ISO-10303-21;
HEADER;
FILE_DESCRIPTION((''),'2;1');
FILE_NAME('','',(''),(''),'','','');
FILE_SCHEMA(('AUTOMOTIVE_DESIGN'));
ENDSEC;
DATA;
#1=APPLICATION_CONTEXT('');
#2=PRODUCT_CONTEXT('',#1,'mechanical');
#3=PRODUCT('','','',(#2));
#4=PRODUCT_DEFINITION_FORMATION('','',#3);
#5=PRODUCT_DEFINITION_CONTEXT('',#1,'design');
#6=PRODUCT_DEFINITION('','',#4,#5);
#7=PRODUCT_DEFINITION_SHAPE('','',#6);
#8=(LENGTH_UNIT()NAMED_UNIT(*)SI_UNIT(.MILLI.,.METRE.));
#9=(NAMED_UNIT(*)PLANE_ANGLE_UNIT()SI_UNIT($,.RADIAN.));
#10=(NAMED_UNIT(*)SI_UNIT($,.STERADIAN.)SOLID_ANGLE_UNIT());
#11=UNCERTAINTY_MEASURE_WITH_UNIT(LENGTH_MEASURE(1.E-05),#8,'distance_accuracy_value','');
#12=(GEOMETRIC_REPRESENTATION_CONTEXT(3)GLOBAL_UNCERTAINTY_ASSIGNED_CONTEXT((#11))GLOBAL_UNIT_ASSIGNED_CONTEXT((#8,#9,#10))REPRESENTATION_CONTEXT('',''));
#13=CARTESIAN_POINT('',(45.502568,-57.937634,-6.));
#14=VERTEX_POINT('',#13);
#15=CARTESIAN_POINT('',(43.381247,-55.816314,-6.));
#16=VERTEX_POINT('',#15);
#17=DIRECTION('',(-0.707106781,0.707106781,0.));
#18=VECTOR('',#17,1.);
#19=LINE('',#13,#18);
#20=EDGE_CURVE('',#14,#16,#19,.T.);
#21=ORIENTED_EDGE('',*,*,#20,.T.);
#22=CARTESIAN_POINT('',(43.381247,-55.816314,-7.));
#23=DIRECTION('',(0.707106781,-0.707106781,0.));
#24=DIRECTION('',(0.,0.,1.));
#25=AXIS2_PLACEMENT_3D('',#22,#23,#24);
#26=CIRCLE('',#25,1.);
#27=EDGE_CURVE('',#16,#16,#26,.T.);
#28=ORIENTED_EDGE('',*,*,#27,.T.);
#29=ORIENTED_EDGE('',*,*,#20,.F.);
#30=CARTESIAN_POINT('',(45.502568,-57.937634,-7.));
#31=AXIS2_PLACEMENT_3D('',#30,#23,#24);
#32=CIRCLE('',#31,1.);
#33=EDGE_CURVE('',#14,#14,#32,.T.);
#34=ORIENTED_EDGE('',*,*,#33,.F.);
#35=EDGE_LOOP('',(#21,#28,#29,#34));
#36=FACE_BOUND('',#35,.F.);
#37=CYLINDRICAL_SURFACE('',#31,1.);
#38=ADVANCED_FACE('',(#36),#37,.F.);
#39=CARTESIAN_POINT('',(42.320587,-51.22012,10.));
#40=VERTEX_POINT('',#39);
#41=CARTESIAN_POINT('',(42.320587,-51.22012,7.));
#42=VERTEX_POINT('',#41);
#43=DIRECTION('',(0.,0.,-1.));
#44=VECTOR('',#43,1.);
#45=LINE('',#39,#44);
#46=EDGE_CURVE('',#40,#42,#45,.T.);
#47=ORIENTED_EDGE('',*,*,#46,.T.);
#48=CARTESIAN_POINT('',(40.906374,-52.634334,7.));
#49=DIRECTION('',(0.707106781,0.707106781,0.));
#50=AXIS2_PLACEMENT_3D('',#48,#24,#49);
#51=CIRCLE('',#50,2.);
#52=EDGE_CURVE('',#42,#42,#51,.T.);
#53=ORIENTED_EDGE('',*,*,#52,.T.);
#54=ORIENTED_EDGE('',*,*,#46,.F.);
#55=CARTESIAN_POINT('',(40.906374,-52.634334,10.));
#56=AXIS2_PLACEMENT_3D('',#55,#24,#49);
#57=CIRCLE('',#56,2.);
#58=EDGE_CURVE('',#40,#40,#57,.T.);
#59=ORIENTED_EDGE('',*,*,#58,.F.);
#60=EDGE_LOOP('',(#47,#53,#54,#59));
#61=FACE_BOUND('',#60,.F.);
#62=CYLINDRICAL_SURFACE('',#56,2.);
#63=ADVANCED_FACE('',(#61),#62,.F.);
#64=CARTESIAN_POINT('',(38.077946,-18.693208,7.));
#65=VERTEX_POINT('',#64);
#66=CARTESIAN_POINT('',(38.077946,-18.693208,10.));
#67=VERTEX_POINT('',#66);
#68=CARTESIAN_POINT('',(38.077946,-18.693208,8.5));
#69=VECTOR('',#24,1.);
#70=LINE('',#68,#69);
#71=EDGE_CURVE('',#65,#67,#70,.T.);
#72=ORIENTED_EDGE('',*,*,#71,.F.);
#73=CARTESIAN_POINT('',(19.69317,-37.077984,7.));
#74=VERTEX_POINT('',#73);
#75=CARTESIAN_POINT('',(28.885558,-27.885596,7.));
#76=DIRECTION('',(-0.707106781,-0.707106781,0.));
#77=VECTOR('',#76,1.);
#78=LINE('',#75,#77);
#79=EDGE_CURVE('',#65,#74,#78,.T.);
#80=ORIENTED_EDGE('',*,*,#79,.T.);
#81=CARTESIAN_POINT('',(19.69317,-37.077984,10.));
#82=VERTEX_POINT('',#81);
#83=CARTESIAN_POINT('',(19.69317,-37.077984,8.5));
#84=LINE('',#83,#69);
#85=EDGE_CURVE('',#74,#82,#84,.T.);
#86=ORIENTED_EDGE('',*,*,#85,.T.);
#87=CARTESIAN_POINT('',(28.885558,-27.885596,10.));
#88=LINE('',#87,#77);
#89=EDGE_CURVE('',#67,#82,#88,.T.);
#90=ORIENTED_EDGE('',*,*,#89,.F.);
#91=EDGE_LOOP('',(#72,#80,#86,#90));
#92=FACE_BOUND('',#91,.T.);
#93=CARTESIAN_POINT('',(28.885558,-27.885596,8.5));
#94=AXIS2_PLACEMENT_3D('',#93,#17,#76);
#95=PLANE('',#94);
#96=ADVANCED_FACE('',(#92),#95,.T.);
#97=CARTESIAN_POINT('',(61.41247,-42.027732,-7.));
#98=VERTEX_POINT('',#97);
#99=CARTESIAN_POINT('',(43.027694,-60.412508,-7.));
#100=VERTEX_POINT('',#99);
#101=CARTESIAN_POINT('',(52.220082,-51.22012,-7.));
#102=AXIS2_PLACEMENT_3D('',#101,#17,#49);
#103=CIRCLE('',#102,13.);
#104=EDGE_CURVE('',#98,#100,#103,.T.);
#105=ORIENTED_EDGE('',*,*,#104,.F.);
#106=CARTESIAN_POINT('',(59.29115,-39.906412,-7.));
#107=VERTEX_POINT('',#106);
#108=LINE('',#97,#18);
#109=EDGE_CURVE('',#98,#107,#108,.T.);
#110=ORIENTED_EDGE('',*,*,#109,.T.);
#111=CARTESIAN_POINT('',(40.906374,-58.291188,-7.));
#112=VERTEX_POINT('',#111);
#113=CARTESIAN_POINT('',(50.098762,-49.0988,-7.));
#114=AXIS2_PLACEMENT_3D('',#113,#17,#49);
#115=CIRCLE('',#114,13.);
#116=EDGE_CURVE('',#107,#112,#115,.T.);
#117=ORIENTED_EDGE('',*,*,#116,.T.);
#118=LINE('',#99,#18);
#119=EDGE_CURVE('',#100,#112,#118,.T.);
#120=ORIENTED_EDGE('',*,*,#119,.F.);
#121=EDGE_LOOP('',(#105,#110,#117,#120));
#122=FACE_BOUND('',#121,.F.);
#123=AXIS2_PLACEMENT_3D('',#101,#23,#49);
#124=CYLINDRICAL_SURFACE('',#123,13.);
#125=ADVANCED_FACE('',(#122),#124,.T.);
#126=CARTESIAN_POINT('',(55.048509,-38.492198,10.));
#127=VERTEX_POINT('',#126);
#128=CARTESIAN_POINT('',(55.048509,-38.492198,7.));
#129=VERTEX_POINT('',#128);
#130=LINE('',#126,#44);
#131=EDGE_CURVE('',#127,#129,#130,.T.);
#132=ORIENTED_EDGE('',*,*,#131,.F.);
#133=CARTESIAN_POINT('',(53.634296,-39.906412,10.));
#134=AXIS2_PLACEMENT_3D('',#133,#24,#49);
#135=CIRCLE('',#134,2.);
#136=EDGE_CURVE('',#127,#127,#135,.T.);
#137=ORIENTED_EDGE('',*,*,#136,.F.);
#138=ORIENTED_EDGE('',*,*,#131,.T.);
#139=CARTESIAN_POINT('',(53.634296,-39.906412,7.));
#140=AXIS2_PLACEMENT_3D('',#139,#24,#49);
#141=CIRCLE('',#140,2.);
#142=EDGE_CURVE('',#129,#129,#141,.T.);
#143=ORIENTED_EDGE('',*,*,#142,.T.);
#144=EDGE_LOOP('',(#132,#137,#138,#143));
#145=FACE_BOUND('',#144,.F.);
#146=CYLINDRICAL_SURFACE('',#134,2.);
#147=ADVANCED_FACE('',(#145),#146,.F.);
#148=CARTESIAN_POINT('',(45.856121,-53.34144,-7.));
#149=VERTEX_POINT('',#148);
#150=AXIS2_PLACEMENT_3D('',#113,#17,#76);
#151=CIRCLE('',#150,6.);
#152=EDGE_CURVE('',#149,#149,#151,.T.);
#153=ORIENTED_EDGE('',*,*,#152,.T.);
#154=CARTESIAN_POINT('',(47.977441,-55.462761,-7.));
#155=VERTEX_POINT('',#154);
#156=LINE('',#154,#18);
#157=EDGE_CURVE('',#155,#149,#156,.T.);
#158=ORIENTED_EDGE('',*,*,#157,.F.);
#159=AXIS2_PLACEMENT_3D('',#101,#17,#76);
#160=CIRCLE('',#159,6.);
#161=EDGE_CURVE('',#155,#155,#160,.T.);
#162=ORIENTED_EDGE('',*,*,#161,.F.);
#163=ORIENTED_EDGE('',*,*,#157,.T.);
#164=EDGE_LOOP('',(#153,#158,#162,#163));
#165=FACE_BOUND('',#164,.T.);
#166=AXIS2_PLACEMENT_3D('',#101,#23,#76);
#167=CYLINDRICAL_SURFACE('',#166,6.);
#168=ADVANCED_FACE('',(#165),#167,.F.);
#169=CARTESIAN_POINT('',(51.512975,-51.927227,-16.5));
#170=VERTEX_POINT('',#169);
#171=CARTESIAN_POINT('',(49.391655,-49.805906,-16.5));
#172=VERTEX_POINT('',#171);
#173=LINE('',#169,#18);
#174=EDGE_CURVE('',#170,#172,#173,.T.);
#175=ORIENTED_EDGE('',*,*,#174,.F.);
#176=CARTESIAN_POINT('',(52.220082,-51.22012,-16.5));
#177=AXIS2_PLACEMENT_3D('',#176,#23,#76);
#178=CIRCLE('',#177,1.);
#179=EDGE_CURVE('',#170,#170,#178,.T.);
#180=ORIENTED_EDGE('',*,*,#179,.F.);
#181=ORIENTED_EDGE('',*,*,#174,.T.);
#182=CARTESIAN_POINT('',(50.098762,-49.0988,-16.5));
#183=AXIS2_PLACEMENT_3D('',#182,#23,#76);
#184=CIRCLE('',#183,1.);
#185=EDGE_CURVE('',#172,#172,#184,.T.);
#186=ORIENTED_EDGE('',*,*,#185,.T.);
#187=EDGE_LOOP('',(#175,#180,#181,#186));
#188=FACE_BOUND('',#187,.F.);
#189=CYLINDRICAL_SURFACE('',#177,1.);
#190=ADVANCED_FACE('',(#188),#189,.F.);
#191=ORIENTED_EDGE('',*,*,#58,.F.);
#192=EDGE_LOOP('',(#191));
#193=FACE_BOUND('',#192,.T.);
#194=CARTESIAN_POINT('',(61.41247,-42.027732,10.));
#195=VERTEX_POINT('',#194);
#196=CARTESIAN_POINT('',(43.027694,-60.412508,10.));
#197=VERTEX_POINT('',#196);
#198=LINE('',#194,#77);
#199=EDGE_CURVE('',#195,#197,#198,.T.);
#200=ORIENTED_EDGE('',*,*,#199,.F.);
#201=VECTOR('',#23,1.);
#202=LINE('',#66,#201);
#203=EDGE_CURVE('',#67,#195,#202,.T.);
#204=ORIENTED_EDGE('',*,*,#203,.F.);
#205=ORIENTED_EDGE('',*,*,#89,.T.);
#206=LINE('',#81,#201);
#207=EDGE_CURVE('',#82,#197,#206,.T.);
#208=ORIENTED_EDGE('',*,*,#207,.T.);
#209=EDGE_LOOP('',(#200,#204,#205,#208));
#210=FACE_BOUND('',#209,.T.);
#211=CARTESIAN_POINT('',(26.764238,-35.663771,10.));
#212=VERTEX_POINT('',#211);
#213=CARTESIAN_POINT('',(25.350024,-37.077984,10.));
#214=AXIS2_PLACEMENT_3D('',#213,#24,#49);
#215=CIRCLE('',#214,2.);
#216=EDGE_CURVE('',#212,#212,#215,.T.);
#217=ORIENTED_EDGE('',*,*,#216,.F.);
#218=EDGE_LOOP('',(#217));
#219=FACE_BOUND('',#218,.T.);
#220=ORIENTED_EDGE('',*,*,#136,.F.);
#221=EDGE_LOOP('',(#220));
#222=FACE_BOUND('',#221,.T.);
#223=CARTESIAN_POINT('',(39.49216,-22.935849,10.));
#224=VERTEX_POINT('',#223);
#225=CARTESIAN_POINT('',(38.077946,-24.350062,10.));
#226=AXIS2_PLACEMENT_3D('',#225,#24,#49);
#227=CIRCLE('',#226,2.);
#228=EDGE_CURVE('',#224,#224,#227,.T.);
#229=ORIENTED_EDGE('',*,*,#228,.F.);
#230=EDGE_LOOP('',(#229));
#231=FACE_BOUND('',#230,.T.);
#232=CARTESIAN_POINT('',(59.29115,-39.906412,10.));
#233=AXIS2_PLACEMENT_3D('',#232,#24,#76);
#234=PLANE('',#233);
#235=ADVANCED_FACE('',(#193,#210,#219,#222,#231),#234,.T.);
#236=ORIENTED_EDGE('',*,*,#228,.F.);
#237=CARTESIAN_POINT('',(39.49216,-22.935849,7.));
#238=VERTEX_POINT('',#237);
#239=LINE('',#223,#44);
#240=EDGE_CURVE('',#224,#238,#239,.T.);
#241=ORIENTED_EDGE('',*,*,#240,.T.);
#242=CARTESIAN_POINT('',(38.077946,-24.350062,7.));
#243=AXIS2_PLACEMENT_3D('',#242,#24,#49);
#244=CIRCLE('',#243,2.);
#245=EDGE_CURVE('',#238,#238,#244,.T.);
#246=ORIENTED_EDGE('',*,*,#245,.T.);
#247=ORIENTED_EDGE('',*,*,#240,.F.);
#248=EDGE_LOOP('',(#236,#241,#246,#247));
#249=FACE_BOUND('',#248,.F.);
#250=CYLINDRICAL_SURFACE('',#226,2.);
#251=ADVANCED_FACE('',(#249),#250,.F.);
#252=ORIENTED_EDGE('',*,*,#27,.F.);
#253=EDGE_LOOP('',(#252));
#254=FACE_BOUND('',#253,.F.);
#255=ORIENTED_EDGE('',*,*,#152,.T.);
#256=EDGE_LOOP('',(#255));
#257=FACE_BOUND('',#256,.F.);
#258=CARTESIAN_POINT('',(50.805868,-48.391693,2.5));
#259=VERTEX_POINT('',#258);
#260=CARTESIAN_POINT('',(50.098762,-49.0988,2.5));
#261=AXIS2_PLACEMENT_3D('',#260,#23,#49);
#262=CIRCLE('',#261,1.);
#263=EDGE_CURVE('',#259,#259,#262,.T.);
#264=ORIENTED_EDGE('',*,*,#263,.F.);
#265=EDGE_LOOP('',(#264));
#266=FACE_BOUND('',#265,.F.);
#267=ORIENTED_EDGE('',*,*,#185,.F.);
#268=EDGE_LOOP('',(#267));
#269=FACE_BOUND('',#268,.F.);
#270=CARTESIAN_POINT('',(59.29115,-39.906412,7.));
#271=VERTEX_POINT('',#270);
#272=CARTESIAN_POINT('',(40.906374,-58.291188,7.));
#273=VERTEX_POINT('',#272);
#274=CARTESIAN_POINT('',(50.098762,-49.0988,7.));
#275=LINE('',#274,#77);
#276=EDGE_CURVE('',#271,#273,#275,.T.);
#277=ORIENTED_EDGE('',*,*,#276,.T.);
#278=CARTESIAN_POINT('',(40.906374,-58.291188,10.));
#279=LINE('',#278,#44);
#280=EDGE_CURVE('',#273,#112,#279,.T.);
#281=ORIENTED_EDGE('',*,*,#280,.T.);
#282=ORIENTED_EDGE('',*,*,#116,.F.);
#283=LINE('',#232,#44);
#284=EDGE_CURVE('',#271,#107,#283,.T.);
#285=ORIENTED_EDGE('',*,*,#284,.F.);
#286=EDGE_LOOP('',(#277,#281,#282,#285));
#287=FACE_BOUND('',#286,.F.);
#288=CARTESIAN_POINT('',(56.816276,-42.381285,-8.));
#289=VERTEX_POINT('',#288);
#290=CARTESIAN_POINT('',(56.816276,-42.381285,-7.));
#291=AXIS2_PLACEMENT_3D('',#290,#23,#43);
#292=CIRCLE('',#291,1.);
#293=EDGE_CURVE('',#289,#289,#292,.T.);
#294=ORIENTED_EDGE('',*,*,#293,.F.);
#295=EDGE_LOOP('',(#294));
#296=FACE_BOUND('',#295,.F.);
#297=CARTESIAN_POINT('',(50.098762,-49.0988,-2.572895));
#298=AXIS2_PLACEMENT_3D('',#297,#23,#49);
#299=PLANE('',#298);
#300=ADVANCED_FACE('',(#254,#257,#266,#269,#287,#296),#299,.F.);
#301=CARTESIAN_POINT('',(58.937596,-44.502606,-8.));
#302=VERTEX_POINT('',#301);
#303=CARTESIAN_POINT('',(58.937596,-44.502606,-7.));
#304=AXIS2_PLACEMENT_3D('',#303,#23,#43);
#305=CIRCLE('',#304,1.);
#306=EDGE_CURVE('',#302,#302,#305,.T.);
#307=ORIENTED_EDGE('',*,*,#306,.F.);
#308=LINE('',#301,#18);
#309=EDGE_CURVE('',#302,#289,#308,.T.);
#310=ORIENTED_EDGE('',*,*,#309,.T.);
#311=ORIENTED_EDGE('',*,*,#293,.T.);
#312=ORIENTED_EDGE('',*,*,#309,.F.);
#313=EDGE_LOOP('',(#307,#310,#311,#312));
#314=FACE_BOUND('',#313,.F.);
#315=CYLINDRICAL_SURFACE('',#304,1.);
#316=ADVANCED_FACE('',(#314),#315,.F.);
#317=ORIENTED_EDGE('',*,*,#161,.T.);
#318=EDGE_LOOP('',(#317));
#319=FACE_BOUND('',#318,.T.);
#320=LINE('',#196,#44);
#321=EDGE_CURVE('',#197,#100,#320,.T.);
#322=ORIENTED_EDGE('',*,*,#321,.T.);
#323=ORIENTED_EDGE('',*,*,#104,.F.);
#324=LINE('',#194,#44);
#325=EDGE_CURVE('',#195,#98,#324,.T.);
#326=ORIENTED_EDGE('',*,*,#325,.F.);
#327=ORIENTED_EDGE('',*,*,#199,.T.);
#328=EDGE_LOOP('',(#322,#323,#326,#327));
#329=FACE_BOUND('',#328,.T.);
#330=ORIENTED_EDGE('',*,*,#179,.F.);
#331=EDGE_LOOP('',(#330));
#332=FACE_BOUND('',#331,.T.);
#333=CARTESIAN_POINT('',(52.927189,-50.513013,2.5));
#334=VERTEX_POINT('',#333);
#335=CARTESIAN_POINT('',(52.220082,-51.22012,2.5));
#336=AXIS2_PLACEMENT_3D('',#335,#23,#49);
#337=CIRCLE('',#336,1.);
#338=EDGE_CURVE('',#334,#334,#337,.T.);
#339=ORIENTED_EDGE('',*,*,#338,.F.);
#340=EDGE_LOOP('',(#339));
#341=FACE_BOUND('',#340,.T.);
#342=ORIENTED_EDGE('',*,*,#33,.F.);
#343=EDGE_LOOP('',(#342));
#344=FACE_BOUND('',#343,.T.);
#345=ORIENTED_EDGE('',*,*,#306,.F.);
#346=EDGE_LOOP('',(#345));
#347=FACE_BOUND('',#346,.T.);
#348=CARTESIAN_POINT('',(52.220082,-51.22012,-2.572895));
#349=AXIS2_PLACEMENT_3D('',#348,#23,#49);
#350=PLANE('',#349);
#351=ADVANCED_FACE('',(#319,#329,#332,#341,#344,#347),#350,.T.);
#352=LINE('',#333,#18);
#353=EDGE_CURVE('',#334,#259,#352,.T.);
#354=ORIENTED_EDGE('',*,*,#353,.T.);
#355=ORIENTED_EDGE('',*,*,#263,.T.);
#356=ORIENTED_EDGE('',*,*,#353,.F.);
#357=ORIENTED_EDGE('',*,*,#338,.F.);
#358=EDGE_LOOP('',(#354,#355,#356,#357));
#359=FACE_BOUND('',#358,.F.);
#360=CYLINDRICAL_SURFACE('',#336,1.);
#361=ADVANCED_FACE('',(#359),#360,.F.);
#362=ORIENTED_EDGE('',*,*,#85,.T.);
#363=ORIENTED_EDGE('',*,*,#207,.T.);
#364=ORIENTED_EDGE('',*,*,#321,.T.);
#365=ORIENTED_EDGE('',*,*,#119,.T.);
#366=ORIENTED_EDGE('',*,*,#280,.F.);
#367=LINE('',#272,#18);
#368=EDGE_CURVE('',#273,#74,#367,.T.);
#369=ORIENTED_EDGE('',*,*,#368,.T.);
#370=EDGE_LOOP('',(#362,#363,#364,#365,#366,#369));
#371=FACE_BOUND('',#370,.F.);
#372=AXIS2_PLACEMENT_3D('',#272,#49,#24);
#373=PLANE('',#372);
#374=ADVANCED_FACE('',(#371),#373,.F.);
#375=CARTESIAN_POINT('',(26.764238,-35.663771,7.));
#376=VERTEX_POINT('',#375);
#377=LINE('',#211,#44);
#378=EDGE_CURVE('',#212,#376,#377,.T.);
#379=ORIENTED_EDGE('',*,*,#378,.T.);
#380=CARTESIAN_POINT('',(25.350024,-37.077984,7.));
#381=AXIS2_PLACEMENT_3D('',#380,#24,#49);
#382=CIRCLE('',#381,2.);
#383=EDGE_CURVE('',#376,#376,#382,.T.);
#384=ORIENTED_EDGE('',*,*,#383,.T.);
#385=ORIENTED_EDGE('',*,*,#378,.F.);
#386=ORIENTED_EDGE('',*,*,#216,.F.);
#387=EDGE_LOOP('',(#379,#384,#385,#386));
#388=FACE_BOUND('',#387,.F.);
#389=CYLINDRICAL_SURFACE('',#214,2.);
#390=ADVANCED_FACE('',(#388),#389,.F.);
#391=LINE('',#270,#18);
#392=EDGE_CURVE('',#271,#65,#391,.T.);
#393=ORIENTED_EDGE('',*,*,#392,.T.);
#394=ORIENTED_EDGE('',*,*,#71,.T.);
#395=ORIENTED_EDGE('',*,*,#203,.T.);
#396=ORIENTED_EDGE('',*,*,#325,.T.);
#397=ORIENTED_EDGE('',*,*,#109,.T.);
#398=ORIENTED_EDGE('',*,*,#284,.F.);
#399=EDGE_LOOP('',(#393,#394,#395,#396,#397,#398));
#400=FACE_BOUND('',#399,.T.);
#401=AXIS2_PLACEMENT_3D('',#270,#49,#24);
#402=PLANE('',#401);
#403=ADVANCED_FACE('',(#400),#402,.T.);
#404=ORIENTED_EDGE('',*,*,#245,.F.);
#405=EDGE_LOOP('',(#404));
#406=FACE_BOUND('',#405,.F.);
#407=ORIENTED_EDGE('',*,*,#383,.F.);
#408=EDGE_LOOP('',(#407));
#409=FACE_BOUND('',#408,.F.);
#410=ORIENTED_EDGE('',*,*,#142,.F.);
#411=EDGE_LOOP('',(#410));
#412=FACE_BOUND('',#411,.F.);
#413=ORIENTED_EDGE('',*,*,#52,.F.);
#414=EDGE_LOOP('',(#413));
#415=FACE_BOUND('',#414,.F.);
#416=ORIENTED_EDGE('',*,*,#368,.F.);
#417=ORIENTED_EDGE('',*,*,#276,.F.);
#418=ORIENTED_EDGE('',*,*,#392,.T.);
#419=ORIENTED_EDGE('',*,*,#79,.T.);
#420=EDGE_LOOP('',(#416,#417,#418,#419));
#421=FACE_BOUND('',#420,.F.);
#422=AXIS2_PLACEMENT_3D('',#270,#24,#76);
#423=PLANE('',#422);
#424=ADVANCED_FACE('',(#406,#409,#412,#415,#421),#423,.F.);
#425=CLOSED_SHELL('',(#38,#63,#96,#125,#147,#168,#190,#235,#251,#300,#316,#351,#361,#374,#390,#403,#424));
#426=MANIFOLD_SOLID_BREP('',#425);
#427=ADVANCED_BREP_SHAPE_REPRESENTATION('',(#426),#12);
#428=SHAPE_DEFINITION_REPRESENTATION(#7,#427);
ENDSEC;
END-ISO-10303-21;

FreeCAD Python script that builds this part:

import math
import FreeCAD as App
import Part
import Sketcher


def add_polygon(sketch, points):
    """Adds a closed chain of lines whose ends are joined by coincident constraints."""
    first, n = sketch.GeometryCount, len(points)
    for a, b in zip(points, points[1:] + points[:1]):
        sketch.addGeometry(Part.LineSegment(App.Vector(*a, 0), App.Vector(*b, 0)), False)
    for i in range(n):
        sketch.addConstraint(Sketcher.Constraint("Coincident", first + i, 2, first + (i + 1) % n, 1))

doc = App.newDocument("Part")
params = doc.addObject("Spreadsheet::Sheet", "Params")
for row, (alias, value) in enumerate([
    ("sketch1_diameter", "12 mm"),
    ("sketch1_radius", "13 mm"),
    ("sketch1_height", "17 mm"),
    ("pad1_length", "3 mm"),
    ("sketch2_width", "26 mm"),
    ("sketch2_height", "3 mm"),
    ("pad2_length", "30 mm"),
    ("sketch3_diameter", "4 mm"),
    ("sketch4_diameter", "2 mm"),
], start=1):
    params.set(f"A{row}", alias)
    params.set(f"B{row}", "=" + value)
    params.setAlias(f"B{row}", alias)

body = doc.addObject("PartDesign::Body", "Body")

sketch1 = doc.addObject("Sketcher::SketchObject", "Sketch")
body.addObject(sketch1)
sketch1.AttachmentSupport = (doc.XZ_Plane, [""])
sketch1.MapMode = "FlatFace"
sketch1.addGeometry([
    Part.LineSegment(App.Vector(13, 17, 0), App.Vector(-13, 17, 0)),
    Part.LineSegment(App.Vector(-13, 17, 0), App.Vector(-13, 0, 0)),
    Part.ArcOfCircle(Part.Circle(App.Vector(0, 0, 0), App.Vector(0, 0, 1), 13), math.radians(180), math.radians(360)),
    Part.LineSegment(App.Vector(13, 0, 0), App.Vector(13, 17, 0)),
    Part.Circle(App.Vector(0, 0, 0), App.Vector(0, 0, 1), 6),
], False)
sketch1.addConstraint([
    Sketcher.Constraint("Coincident", 0, 2, 1, 1),
    Sketcher.Constraint("Tangent", 1, 2, 2, 1),
    Sketcher.Constraint("Tangent", 2, 2, 3, 1),
    Sketcher.Constraint("Coincident", 3, 2, 0, 1),
    Sketcher.Constraint("Horizontal", 0),
    Sketcher.Constraint("Vertical", 1),
    Sketcher.Constraint("Vertical", 3),
    Sketcher.Constraint("Coincident", 2, 3, -1, 1),
    Sketcher.Constraint("Coincident", 4, 3, -1, 1),
    Sketcher.Constraint("Diameter", 4, 12.0),
    Sketcher.Constraint("Radius", 2, 13.0),
    Sketcher.Constraint("DistanceY", 1, 2, 1, 1, 17.0),
])
sketch1.setExpression("Constraints[9]", "Params.sketch1_diameter")
sketch1.setExpression("Constraints[10]", "Params.sketch1_radius")
sketch1.setExpression("Constraints[11]", "Params.sketch1_height")
pad1 = doc.addObject("PartDesign::Pad", "Pad")
body.addObject(pad1)
pad1.Profile = sketch1
pad1.setExpression("Length", "Params.pad1_length")

sketch2 = doc.addObject("Sketcher::SketchObject", "Sketch001")
body.addObject(sketch2)
sketch2.AttachmentSupport = (doc.XZ_Plane, [""])
sketch2.MapMode = "FlatFace"
sketch2.AttachmentOffset = App.Placement(App.Vector(0, 0, 3), App.Rotation())
add_polygon(sketch2, [(-13, 17), (-13, 14), (13, 14), (13, 17)])
sketch2.addConstraint([
    Sketcher.Constraint("Vertical", 0),
    Sketcher.Constraint("Horizontal", 1),
    Sketcher.Constraint("Vertical", 2),
    Sketcher.Constraint("Horizontal", 3),
    Sketcher.Constraint("DistanceX", 1, 1, 1, 2, 26.0),
    Sketcher.Constraint("DistanceY", 0, 2, 0, 1, 3.0),
    Sketcher.Constraint("DistanceX", 0, 2, -1, 1, 13.0),
    Sketcher.Constraint("DistanceY", -1, 1, 0, 2, 14.0),
])
sketch2.setExpression("Constraints[8]", "Params.sketch2_width")
sketch2.setExpression("Constraints[9]", "Params.sketch2_height")
pad2 = doc.addObject("PartDesign::Pad", "Pad001")
body.addObject(pad2)
pad2.Profile = sketch2
pad2.setExpression("Length", "Params.pad2_length")

sketch3 = doc.addObject("Sketcher::SketchObject", "Sketch002")
body.addObject(sketch3)
sketch3.AttachmentSupport = (doc.XY_Plane, [""])
sketch3.MapMode = "FlatFace"
sketch3.AttachmentOffset = App.Placement(App.Vector(0, 0, 17), App.Rotation())
sketch3.addGeometry([
    Part.Circle(App.Vector(9, -7, 0), App.Vector(0, 0, 1), 2),
    Part.Circle(App.Vector(-9, -7, 0), App.Vector(0, 0, 1), 2),
    Part.Circle(App.Vector(9, -29, 0), App.Vector(0, 0, 1), 2),
    Part.Circle(App.Vector(-9, -29, 0), App.Vector(0, 0, 1), 2),
], False)
sketch3.addConstraint([
    Sketcher.Constraint("Equal", 0, 1),
    Sketcher.Constraint("Equal", 1, 2),
    Sketcher.Constraint("Equal", 2, 3),
    Sketcher.Constraint("Symmetric", 0, 3, 1, 3, -2),
    Sketcher.Constraint("Symmetric", 2, 3, 3, 3, -2),
    Sketcher.Constraint("Vertical", 0, 3, 2, 3),
    Sketcher.Constraint("Diameter", 0, 4.0),
    Sketcher.Constraint("DistanceX", -1, 1, 0, 3, 9.0),
    Sketcher.Constraint("DistanceY", 0, 3, -1, 1, 7.0),
    Sketcher.Constraint("DistanceY", 2, 3, -1, 1, 29.0),
])
sketch3.setExpression("Constraints[6]", "Params.sketch3_diameter")
pocket1 = doc.addObject("PartDesign::Pocket", "Pocket")
body.addObject(pocket1)
pocket1.Profile = sketch3
pocket1.Type = "ThroughAll"

sketch4 = doc.addObject("Sketcher::SketchObject", "Sketch003")
body.addObject(sketch4)
sketch4.AttachmentSupport = (doc.XZ_Plane, [""])
sketch4.MapMode = "FlatFace"
sketch4.addGeometry(Part.Circle(App.Vector(0, -9.5, 0), App.Vector(0, 0, 1), 1), False)
sketch4.addConstraint([
    Sketcher.Constraint("PointOnObject", 0, 3, -2),
    Sketcher.Constraint("Diameter", 0, 2.0),
    Sketcher.Constraint("DistanceY", 0, 3, -1, 1, 9.5),
])
sketch4.setExpression("Constraints[1]", "Params.sketch4_diameter")
pocket2 = doc.addObject("PartDesign::Pocket", "Pocket001")
body.addObject(pocket2)
pocket2.Profile = sketch4
pocket2.Type = "ThroughAll"
pocket2.Reversed = True
doc.recompute()

polarpattern = doc.addObject("PartDesign::PolarPattern", "PolarPattern")
body.addObject(polarpattern)
polarpattern.Originals = [pocket2]
polarpattern.Axis = (doc.Y_Axis, [""])
polarpattern.Angle = 360
polarpattern.Occurrences = 4
body.Tip = polarpattern
body2 = doc.addObject("PartDesign::Body", "Body001")
doc.recompute()

body.Placement = App.Placement(App.Vector(52.220082, -51.22012, -7), App.Rotation(App.Vector(0, 0, 1), 225))
boolean = doc.addObject("PartDesign::Boolean", "Boolean")
body2.addObject(boolean)
boolean.Type = "Fuse"
boolean.addObjects([body])

doc.recompute()
